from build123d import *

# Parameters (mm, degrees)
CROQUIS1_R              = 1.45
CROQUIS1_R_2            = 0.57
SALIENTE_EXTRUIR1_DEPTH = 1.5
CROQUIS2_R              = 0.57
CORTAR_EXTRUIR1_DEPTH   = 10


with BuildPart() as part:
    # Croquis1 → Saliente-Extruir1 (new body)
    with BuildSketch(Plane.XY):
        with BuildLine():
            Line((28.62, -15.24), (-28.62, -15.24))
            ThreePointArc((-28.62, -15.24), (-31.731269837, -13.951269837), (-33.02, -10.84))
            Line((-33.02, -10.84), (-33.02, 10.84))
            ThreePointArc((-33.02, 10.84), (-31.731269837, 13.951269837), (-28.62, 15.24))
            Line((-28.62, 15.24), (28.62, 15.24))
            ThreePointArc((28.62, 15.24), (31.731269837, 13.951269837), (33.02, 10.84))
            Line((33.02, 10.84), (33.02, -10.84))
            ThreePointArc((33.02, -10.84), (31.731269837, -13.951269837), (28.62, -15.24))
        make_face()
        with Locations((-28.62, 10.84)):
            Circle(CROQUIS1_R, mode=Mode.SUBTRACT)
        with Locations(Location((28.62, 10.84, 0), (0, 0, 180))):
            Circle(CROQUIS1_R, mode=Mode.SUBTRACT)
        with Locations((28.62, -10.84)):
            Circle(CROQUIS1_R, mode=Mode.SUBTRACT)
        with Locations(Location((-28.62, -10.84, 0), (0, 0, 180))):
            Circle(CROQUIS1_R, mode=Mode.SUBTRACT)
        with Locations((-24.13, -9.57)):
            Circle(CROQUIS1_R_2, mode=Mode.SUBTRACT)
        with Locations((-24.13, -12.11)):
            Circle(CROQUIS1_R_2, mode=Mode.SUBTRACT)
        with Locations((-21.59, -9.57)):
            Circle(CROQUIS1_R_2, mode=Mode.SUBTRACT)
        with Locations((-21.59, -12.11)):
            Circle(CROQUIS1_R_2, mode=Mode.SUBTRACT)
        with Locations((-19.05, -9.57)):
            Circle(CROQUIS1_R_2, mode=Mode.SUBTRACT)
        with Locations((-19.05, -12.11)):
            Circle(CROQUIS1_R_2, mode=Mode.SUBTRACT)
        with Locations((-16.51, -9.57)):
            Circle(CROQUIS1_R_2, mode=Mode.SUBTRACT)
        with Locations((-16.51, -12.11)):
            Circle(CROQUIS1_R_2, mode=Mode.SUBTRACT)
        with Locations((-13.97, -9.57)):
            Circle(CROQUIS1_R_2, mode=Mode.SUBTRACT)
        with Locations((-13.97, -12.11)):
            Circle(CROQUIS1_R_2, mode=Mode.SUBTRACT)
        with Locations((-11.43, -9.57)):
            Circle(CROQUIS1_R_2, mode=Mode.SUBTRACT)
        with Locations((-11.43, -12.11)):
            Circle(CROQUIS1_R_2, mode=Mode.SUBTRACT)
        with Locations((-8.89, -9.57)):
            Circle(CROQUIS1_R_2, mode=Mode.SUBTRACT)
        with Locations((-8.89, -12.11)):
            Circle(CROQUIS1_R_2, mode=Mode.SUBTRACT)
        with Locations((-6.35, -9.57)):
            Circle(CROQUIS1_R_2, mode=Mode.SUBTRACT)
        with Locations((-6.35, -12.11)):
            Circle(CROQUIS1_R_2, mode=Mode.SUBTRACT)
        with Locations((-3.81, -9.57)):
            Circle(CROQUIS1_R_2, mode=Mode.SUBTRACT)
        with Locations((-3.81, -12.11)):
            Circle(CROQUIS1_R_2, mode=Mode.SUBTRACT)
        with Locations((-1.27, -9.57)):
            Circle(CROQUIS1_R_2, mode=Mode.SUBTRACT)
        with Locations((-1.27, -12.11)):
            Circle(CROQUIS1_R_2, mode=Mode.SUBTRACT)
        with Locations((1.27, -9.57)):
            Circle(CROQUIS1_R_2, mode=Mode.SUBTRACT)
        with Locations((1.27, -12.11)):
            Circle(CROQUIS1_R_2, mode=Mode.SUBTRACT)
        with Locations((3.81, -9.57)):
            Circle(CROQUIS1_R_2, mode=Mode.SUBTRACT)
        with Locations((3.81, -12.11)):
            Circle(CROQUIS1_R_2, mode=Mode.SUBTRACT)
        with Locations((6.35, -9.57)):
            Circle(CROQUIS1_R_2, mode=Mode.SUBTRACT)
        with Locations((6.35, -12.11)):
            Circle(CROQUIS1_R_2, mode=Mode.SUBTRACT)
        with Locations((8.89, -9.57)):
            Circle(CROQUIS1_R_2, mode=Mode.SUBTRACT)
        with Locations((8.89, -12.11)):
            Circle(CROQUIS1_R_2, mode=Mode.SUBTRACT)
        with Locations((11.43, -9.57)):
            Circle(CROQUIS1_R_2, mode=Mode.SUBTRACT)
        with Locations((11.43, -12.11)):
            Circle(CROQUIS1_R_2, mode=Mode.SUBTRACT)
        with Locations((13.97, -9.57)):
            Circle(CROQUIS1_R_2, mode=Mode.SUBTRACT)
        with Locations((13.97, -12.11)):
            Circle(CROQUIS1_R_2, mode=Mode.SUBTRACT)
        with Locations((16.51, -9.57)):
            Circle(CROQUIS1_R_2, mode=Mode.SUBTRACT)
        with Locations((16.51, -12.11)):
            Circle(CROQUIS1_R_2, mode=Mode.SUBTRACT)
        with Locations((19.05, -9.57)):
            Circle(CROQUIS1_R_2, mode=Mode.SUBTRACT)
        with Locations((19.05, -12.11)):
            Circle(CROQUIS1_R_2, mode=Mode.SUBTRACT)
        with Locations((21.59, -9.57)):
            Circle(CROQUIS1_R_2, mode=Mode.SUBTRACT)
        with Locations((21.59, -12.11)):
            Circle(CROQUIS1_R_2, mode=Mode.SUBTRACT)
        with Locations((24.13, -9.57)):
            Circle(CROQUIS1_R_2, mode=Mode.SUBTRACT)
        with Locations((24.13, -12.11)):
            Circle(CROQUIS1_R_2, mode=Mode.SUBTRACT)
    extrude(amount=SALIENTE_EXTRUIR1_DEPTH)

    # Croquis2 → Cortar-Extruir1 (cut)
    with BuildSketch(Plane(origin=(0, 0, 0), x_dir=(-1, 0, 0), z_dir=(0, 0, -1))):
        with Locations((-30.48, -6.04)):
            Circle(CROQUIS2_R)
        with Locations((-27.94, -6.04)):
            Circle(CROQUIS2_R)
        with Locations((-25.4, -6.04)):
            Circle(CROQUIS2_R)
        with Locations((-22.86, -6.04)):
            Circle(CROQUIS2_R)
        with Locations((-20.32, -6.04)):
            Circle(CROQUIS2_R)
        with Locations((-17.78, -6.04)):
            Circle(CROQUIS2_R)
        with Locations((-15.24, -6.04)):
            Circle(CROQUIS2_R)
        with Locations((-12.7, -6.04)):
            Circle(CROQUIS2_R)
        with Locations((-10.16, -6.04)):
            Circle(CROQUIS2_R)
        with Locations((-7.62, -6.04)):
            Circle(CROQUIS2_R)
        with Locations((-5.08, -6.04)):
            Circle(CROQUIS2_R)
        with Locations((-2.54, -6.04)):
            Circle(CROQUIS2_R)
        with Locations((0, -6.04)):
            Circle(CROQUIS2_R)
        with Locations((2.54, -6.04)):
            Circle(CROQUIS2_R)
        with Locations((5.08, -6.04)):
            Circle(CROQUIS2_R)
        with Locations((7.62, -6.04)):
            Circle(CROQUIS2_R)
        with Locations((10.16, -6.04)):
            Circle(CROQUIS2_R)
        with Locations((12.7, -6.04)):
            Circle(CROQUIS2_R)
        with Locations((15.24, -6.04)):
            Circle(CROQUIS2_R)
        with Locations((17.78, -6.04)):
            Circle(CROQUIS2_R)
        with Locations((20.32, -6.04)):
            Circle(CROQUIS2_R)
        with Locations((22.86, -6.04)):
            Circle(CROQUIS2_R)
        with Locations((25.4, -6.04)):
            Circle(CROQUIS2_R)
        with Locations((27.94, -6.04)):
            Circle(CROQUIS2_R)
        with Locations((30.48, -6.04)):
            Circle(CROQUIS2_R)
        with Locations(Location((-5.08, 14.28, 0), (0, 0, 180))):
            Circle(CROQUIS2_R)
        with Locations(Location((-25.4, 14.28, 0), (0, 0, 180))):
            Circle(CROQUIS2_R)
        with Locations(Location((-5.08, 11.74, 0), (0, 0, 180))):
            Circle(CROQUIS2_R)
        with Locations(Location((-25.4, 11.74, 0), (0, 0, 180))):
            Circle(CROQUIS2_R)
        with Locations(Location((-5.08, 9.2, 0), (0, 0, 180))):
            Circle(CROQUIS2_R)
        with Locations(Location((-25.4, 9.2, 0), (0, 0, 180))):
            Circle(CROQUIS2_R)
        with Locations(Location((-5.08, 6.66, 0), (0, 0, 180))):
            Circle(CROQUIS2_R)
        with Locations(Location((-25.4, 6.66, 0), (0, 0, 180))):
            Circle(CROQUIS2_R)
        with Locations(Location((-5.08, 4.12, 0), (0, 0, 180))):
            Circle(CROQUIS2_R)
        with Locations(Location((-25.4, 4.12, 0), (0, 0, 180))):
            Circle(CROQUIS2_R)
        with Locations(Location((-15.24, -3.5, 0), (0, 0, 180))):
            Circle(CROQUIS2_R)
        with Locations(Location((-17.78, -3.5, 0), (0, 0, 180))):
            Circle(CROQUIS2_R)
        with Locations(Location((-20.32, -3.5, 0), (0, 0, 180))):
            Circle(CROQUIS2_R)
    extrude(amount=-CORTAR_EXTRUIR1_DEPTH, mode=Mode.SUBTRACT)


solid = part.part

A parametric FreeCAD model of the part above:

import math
import FreeCAD as App
import Part
import Sketcher

doc = App.newDocument("Part")
body = doc.addObject("PartDesign::Body", "Body")

# Sketch on XY plane
sketch1 = body.newObject("Sketcher::SketchObject", "Sketch")
sketch1.AttachmentSupport = (doc.getObject("XY_Plane"), [""])
sketch1.MapMode = "FlatFace"
sketch1.addGeometry([
    Part.LineSegment(App.Vector(-28.6, -15.2, 0), App.Vector(28.6, -15.2, 0)),  # 0
    Part.ArcOfCircle(Part.Circle(App.Vector(28.6, -10.8, 0), App.Vector(0, 0, 1), 4.4), math.radians(-90), math.radians(0)),  # 1
    Part.LineSegment(App.Vector(33, -10.8, 0), App.Vector(33, 10.8, 0)),  # 2
    Part.ArcOfCircle(Part.Circle(App.Vector(28.6, 10.8, 0), App.Vector(0, 0, 1), 4.4), math.radians(0), math.radians(90)),  # 3
    Part.LineSegment(App.Vector(28.6, 15.2, 0), App.Vector(-28.6, 15.2, 0)),  # 4
    Part.ArcOfCircle(Part.Circle(App.Vector(-28.6, 10.8, 0), App.Vector(0, 0, 1), 4.4), math.radians(90), math.radians(180)),  # 5
    Part.LineSegment(App.Vector(-33, 10.8, 0), App.Vector(-33, -10.8, 0)),  # 6
    Part.ArcOfCircle(Part.Circle(App.Vector(-28.6, -10.8, 0), App.Vector(0, 0, 1), 4.4), math.radians(-180), math.radians(-90)),  # 7
    Part.Circle(App.Vector(24.1, -12.1, 0), App.Vector(0, 0, 1), 0.6),  # 8
    Part.Circle(App.Vector(28.6, -10.8, 0), App.Vector(0, 0, 1), 1.4),  # 9
    Part.Circle(App.Vector(24.1, -9.6, 0), App.Vector(0, 0, 1), 0.6),  # 10
    Part.Circle(App.Vector(21.6, -12.1, 0), App.Vector(0, 0, 1), 0.6),  # 11
    Part.Circle(App.Vector(19.1, -12.1, 0), App.Vector(0, 0, 1), 0.6),  # 12
    Part.Circle(App.Vector(16.5, -12.1, 0), App.Vector(0, 0, 1), 0.6),  # 13
    Part.Circle(App.Vector(21.6, -9.6, 0), App.Vector(0, 0, 1), 0.6),  # 14
    Part.Circle(App.Vector(19.1, -9.6, 0), App.Vector(0, 0, 1), 0.6),  # 15
    Part.Circle(App.Vector(16.5, -9.6, 0), App.Vector(0, 0, 1), 0.6),  # 16
    Part.Circle(App.Vector(14, -12.1, 0), App.Vector(0, 0, 1), 0.6),  # 17
    Part.Circle(App.Vector(11.4, -12.1, 0), App.Vector(0, 0, 1), 0.6),  # 18
    Part.Circle(App.Vector(8.9, -12.1, 0), App.Vector(0, 0, 1), 0.6),  # 19
    Part.Circle(App.Vector(14, -9.6, 0), App.Vector(0, 0, 1), 0.6),  # 20
    Part.Circle(App.Vector(11.4, -9.6, 0), App.Vector(0, 0, 1), 0.6),  # 21
    Part.Circle(App.Vector(8.9, -9.6, 0), App.Vector(0, 0, 1), 0.6),  # 22
    Part.Circle(App.Vector(6.3, -12.1, 0), App.Vector(0, 0, 1), 0.6),  # 23
    Part.Circle(App.Vector(3.8, -12.1, 0), App.Vector(0, 0, 1), 0.6),  # 24
    Part.Circle(App.Vector(1.3, -12.1, 0), App.Vector(0, 0, 1), 0.6),  # 25
    Part.Circle(App.Vector(6.3, -9.6, 0), App.Vector(0, 0, 1), 0.6),  # 26
    Part.Circle(App.Vector(3.8, -9.6, 0), App.Vector(0, 0, 1), 0.6),  # 27
    Part.Circle(App.Vector(1.3, -9.6, 0), App.Vector(0, 0, 1), 0.6),  # 28
    Part.Circle(App.Vector(-1.3, -12.1, 0), App.Vector(0, 0, 1), 0.6),  # 29
    Part.Circle(App.Vector(-3.8, -12.1, 0), App.Vector(0, 0, 1), 0.6),  # 30
    Part.Circle(App.Vector(-6.3, -12.1, 0), App.Vector(0, 0, 1), 0.6),  # 31
    Part.Circle(App.Vector(-1.3, -9.6, 0), App.Vector(0, 0, 1), 0.6),  # 32
    Part.Circle(App.Vector(-3.8, -9.6, 0), App.Vector(0, 0, 1), 0.6),  # 33
    Part.Circle(App.Vector(-6.3, -9.6, 0), App.Vector(0, 0, 1), 0.6),  # 34
    Part.Circle(App.Vector(-8.9, -12.1, 0), App.Vector(0, 0, 1), 0.6),  # 35
    Part.Circle(App.Vector(-11.4, -12.1, 0), App.Vector(0, 0, 1), 0.6),  # 36
    Part.Circle(App.Vector(-14, -12.1, 0), App.Vector(0, 0, 1), 0.6),  # 37
    Part.Circle(App.Vector(-8.9, -9.6, 0), App.Vector(0, 0, 1), 0.6),  # 38
    Part.Circle(App.Vector(-11.4, -9.6, 0), App.Vector(0, 0, 1), 0.6),  # 39
    Part.Circle(App.Vector(-14, -9.6, 0), App.Vector(0, 0, 1), 0.6),  # 40
    Part.Circle(App.Vector(-16.5, -12.1, 0), App.Vector(0, 0, 1), 0.6),  # 41
    Part.Circle(App.Vector(-19.1, -12.1, 0), App.Vector(0, 0, 1), 0.6),  # 42
    Part.Circle(App.Vector(-21.6, -12.1, 0), App.Vector(0, 0, 1), 0.6),  # 43
    Part.Circle(App.Vector(-16.5, -9.6, 0), App.Vector(0, 0, 1), 0.6),  # 44
    Part.Circle(App.Vector(-19.1, -9.6, 0), App.Vector(0, 0, 1), 0.6),  # 45
    Part.Circle(App.Vector(-21.6, -9.6, 0), App.Vector(0, 0, 1), 0.6),  # 46
    Part.Circle(App.Vector(-24.1, -12.1, 0), App.Vector(0, 0, 1), 0.6),  # 47
    Part.Circle(App.Vector(-24.1, -9.6, 0), App.Vector(0, 0, 1), 0.6),  # 48
    Part.Circle(App.Vector(-28.6, -10.8, 0), App.Vector(0, 0, 1), 1.4),  # 49
    Part.Circle(App.Vector(28.6, 10.8, 0), App.Vector(0, 0, 1), 1.4),  # 50
    Part.Circle(App.Vector(-28.6, 10.8, 0), App.Vector(0, 0, 1), 1.4),  # 51
], False)
sketch1.addConstraint([
    Sketcher.Constraint("Tangent", 0, 2, 1, 1),
    Sketcher.Constraint("Tangent", 1, 2, 2, 1),
    Sketcher.Constraint("Tangent", 2, 2, 3, 1),
    Sketcher.Constraint("Tangent", 3, 2, 4, 1),
    Sketcher.Constraint("Tangent", 4, 2, 5, 1),
    Sketcher.Constraint("Tangent", 5, 2, 6, 1),
    Sketcher.Constraint("Tangent", 6, 2, 7, 1),
    Sketcher.Constraint("Tangent", 7, 2, 0, 1),
    Sketcher.Constraint("Horizontal", 0),
    Sketcher.Constraint("Vertical", 2),
    Sketcher.Constraint("Horizontal", 4),
    Sketcher.Constraint("Vertical", 6),
    Sketcher.Constraint("Coincident", 9, 3, 1, 3),
    Sketcher.Constraint("Coincident", 49, 3, 7, 3),
    Sketcher.Constraint("Coincident", 50, 3, 3, 3),
    Sketcher.Constraint("Coincident", 51, 3, 5, 3),
    Sketcher.Constraint("Equal", 1, 3),
    Sketcher.Constraint("Equal", 3, 5),
    Sketcher.Constraint("Equal", 5, 7),
    Sketcher.Constraint("Equal", 8, 10),
    Sketcher.Constraint("Equal", 10, 11),
    Sketcher.Constraint("Equal", 11, 12),
    Sketcher.Constraint("Equal", 12, 13),
    Sketcher.Constraint("Equal", 13, 14),
    Sketcher.Constraint("Equal", 14, 15),
    Sketcher.Constraint("Equal", 15, 16),
    Sketcher.Constraint("Equal", 16, 17),
    Sketcher.Constraint("Equal", 17, 18),
    Sketcher.Constraint("Equal", 18, 19),
    Sketcher.Constraint("Equal", 19, 20),
    Sketcher.Constraint("Equal", 20, 21),
    Sketcher.Constraint("Equal", 21, 22),
    Sketcher.Constraint("Equal", 22, 23),
    Sketcher.Constraint("Equal", 23, 24),
    Sketcher.Constraint("Equal", 24, 25),
    Sketcher.Constraint("Equal", 25, 26),
    Sketcher.Constraint("Equal", 26, 27),
    Sketcher.Constraint("Equal", 27, 28),
    Sketcher.Constraint("Equal", 28, 29),
    Sketcher.Constraint("Equal", 29, 30),
    Sketcher.Constraint("Equal", 30, 31),
    Sketcher.Constraint("Equal", 31, 32),
    Sketcher.Constraint("Equal", 32, 33),
    Sketcher.Constraint("Equal", 33, 34),
    Sketcher.Constraint("Equal", 34, 35),
    Sketcher.Constraint("Equal", 35, 36),
    Sketcher.Constraint("Equal", 36, 37),
    Sketcher.Constraint("Equal", 37, 38),
    Sketcher.Constraint("Equal", 38, 39),
    Sketcher.Constraint("Equal", 39, 40),
    Sketcher.Constraint("Equal", 40, 41),
    Sketcher.Constraint("Equal", 41, 42),
    Sketcher.Constraint("Equal", 42, 43),
    Sketcher.Constraint("Equal", 43, 44),
    Sketcher.Constraint("Equal", 44, 45),
    Sketcher.Constraint("Equal", 45, 46),
    Sketcher.Constraint("Equal", 46, 47),
    Sketcher.Constraint("Equal", 47, 48),
    Sketcher.Constraint("Equal", 9, 49),
    Sketcher.Constraint("Equal", 49, 50),
    Sketcher.Constraint("Equal", 50, 51),
    Sketcher.Constraint("Symmetric", 1, 3, 5, 3, -1, 1),
    Sketcher.Constraint("Symmetric", 25, 3, 29, 3, -2),
    Sketcher.Constraint("Symmetric", 24, 3, 30, 3, -2),
    Sketcher.Constraint("Symmetric", 23, 3, 31, 3, -2),
    Sketcher.Constraint("Symmetric", 28, 3, 32, 3, -2),
    Sketcher.Constraint("Symmetric", 27, 3, 33, 3, -2),
    Sketcher.Constraint("Symmetric", 26, 3, 34, 3, -2),
    Sketcher.Constraint("Symmetric", 19, 3, 35, 3, -2),
    Sketcher.Constraint("Symmetric", 18, 3, 36, 3, -2),
    Sketcher.Constraint("Symmetric", 17, 3, 37, 3, -2),
    Sketcher.Constraint("Symmetric", 22, 3, 38, 3, -2),
    Sketcher.Constraint("Symmetric", 21, 3, 39, 3, -2),
    Sketcher.Constraint("Symmetric", 20, 3, 40, 3, -2),
    Sketcher.Constraint("Symmetric", 13, 3, 41, 3, -2),
    Sketcher.Constraint("Symmetric", 12, 3, 42, 3, -2),
    Sketcher.Constraint("Symmetric", 11, 3, 43, 3, -2),
    Sketcher.Constraint("Symmetric", 16, 3, 44, 3, -2),
    Sketcher.Constraint("Symmetric", 15, 3, 45, 3, -2),
    Sketcher.Constraint("Symmetric", 14, 3, 46, 3, -2),
    Sketcher.Constraint("Symmetric", 8, 3, 47, 3, -2),
    Sketcher.Constraint("Symmetric", 10, 3, 48, 3, -2),
    Sketcher.Constraint("Horizontal", 8, 3, 11, 3),
    Sketcher.Constraint("Horizontal", 11, 3, 12, 3),
    Sketcher.Constraint("Horizontal", 12, 3, 13, 3),
    Sketcher.Constraint("Horizontal", 10, 3, 14, 3),
    Sketcher.Constraint("Horizontal", 14, 3, 15, 3),
    Sketcher.Constraint("Horizontal", 15, 3, 16, 3),
    Sketcher.Constraint("Horizontal", 13, 3, 17, 3),
    Sketcher.Constraint("Horizontal", 17, 3, 18, 3),
    Sketcher.Constraint("Horizontal", 18, 3, 19, 3),
    Sketcher.Constraint("Horizontal", 16, 3, 20, 3),
    Sketcher.Constraint("Horizontal", 20, 3, 21, 3),
    Sketcher.Constraint("Horizontal", 21, 3, 22, 3),
    Sketcher.Constraint("Horizontal", 19, 3, 23, 3),
    Sketcher.Constraint("Horizontal", 23, 3, 24, 3),
    Sketcher.Constraint("Horizontal", 24, 3, 25, 3),
    Sketcher.Constraint("Horizontal", 22, 3, 26, 3),
    Sketcher.Constraint("Horizontal", 26, 3, 27, 3),
    Sketcher.Constraint("Horizontal", 27, 3, 28, 3),
    Sketcher.Constraint("Vertical", 8, 3, 10, 3),
    Sketcher.Constraint("Vertical", 11, 3, 14, 3),
    Sketcher.Constraint("Vertical", 12, 3, 15, 3),
    Sketcher.Constraint("Vertical", 13, 3, 16, 3),
    Sketcher.Constraint("Vertical", 17, 3, 20, 3),
    Sketcher.Constraint("Vertical", 18, 3, 21, 3),
    Sketcher.Constraint("Vertical", 19, 3, 22, 3),
    Sketcher.Constraint("Vertical", 23, 3, 26, 3),
    Sketcher.Constraint("Vertical", 24, 3, 27, 3),
    Sketcher.Constraint("Vertical", 25, 3, 28, 3),
    Sketcher.Constraint("Diameter", 9, 2.9),
    Sketcher.Constraint("Radius", 1, 4.4),
    Sketcher.Constraint("Diameter", 8, 1.14),
    Sketcher.Constraint("DistanceX", 0, 1, 0, 2, 57.24),
    Sketcher.Constraint("DistanceY", 2, 1, 2, 2, 21.68),
    Sketcher.Constraint("DistanceX", -1, 1, 8, 3, 24.13),
    Sketcher.Constraint("DistanceY", 8, 3, -1, 1, 12.11),
    Sketcher.Constraint("DistanceY", 10, 3, -1, 1, 9.57),
    Sketcher.Constraint("DistanceX", -1, 1, 11, 3, 21.59),
    Sketcher.Constraint("DistanceX", -1, 1, 12, 3, 19.05),
    Sketcher.Constraint("DistanceX", -1, 1, 13, 3, 16.51),
    Sketcher.Constraint("DistanceX", -1, 1, 17, 3, 13.97),
    Sketcher.Constraint("DistanceX", -1, 1, 18, 3, 11.43),
    Sketcher.Constraint("DistanceX", -1, 1, 19, 3, 8.89),
    Sketcher.Constraint("DistanceX", -1, 1, 23, 3, 6.35),
    Sketcher.Constraint("DistanceX", -1, 1, 24, 3, 3.81),
    Sketcher.Constraint("DistanceX", -1, 1, 25, 3, 1.27),
])
pad1 = body.newObject("PartDesign::Pad", "Pad")
pad1.Profile = sketch1
pad1.Length = 1.5

# Sketch on XY plane
sketch2 = body.newObject("Sketcher::SketchObject", "Sketch001")
sketch2.AttachmentSupport = (doc.getObject("XY_Plane"), [""])
sketch2.MapMode = "FlatFace"
sketch2.addGeometry([
    Part.Circle(App.Vector(30.5, -6, 0), App.Vector(0, 0, 1), 0.6),  # 0
    Part.Circle(App.Vector(27.9, -6, 0), App.Vector(0, 0, 1), 0.6),  # 1
    Part.Circle(App.Vector(25.4, -6, 0), App.Vector(0, 0, 1), 0.6),  # 2
    Part.Circle(App.Vector(22.9, -6, 0), App.Vector(0, 0, 1), 0.6),  # 3
    Part.Circle(App.Vector(20.3, -6, 0), App.Vector(0, 0, 1), 0.6),  # 4
    Part.Circle(App.Vector(17.8, -6, 0), App.Vector(0, 0, 1), 0.6),  # 5
    Part.Circle(App.Vector(15.2, -6, 0), App.Vector(0, 0, 1), 0.6),  # 6
    Part.Circle(App.Vector(12.7, -6, 0), App.Vector(0, 0, 1), 0.6),  # 7
    Part.Circle(App.Vector(10.2, -6, 0), App.Vector(0, 0, 1), 0.6),  # 8
    Part.Circle(App.Vector(7.6, -6, 0), App.Vector(0, 0, 1), 0.6),  # 9
    Part.Circle(App.Vector(5.1, -6, 0), App.Vector(0, 0, 1), 0.6),  # 10
    Part.Circle(App.Vector(2.5, -6, 0), App.Vector(0, 0, 1), 0.6),  # 11
    Part.Circle(App.Vector(0, -6, 0), App.Vector(0, 0, 1), 0.6),  # 12
    Part.Circle(App.Vector(-2.5, -6, 0), App.Vector(0, 0, 1), 0.6),  # 13
    Part.Circle(App.Vector(-5.1, -6, 0), App.Vector(0, 0, 1), 0.6),  # 14
    Part.Circle(App.Vector(-7.6, -6, 0), App.Vector(0, 0, 1), 0.6),  # 15
    Part.Circle(App.Vector(-10.2, -6, 0), App.Vector(0, 0, 1), 0.6),  # 16
    Part.Circle(App.Vector(-12.7, -6, 0), App.Vector(0, 0, 1), 0.6),  # 17
    Part.Circle(App.Vector(-15.2, -6, 0), App.Vector(0, 0, 1), 0.6),  # 18
    Part.Circle(App.Vector(-17.8, -6, 0), App.Vector(0, 0, 1), 0.6),  # 19
    Part.Circle(App.Vector(-20.3, -6, 0), App.Vector(0, 0, 1), 0.6),  # 20
    Part.Circle(App.Vector(-22.9, -6, 0), App.Vector(0, 0, 1), 0.6),  # 21
    Part.Circle(App.Vector(-25.4, -6, 0), App.Vector(0, 0, 1), 0.6),  # 22
    Part.Circle(App.Vector(-27.9, -6, 0), App.Vector(0, 0, 1), 0.6),  # 23
    Part.Circle(App.Vector(-30.5, -6, 0), App.Vector(0, 0, 1), 0.6),  # 24
    Part.Circle(App.Vector(5.1, 14.3, 0), App.Vector(0, 0, 1), 0.6),  # 25
    Part.Circle(App.Vector(25.4, 14.3, 0), App.Vector(0, 0, 1), 0.6),  # 26
    Part.Circle(App.Vector(5.1, 11.7, 0), App.Vector(0, 0, 1), 0.6),  # 27
    Part.Circle(App.Vector(25.4, 11.7, 0), App.Vector(0, 0, 1), 0.6),  # 28
    Part.Circle(App.Vector(5.1, 9.2, 0), App.Vector(0, 0, 1), 0.6),  # 29
    Part.Circle(App.Vector(25.4, 9.2, 0), App.Vector(0, 0, 1), 0.6),  # 30
    Part.Circle(App.Vector(5.1, 6.7, 0), App.Vector(0, 0, 1), 0.6),  # 31
    Part.Circle(App.Vector(25.4, 6.7, 0), App.Vector(0, 0, 1), 0.6),  # 32
    Part.Circle(App.Vector(5.1, 4.1, 0), App.Vector(0, 0, 1), 0.6),  # 33
    Part.Circle(App.Vector(25.4, 4.1, 0), App.Vector(0, 0, 1), 0.6),  # 34
    Part.Circle(App.Vector(15.2, -3.5, 0), App.Vector(0, 0, 1), 0.6),  # 35
    Part.Circle(App.Vector(17.8, -3.5, 0), App.Vector(0, 0, 1), 0.6),  # 36
    Part.Circle(App.Vector(20.3, -3.5, 0), App.Vector(0, 0, 1), 0.6),  # 37
], False)
sketch2.addConstraint([
    Sketcher.Constraint("Equal", 0, 1),
    Sketcher.Constraint("Equal", 1, 2),
    Sketcher.Constraint("Equal", 2, 3),
    Sketcher.Constraint("Equal", 3, 4),
    Sketcher.Constraint("Equal", 4, 5),
    Sketcher.Constraint("Equal", 5, 6),
    Sketcher.Constraint("Equal", 6, 7),
    Sketcher.Constraint("Equal", 7, 8),
    Sketcher.Constraint("Equal", 8, 9),
    Sketcher.Constraint("Equal", 9, 10),
    Sketcher.Constraint("Equal", 10, 11),
    Sketcher.Constraint("Equal", 11, 12),
    Sketcher.Constraint("Equal", 12, 13),
    Sketcher.Constraint("Equal", 13, 14),
    Sketcher.Constraint("Equal", 14, 15),
    Sketcher.Constraint("Equal", 15, 16),
    Sketcher.Constraint("Equal", 16, 17),
    Sketcher.Constraint("Equal", 17, 18),
    Sketcher.Constraint("Equal", 18, 19),
    Sketcher.Constraint("Equal", 19, 20),
    Sketcher.Constraint("Equal", 20, 21),
    Sketcher.Constraint("Equal", 21, 22),
    Sketcher.Constraint("Equal", 22, 23),
    Sketcher.Constraint("Equal", 23, 24),
    Sketcher.Constraint("Equal", 24, 25),
    Sketcher.Constraint("Equal", 25, 26),
    Sketcher.Constraint("Equal", 26, 27),
    Sketcher.Constraint("Equal", 27, 28),
    Sketcher.Constraint("Equal", 28, 29),
    Sketcher.Constraint("Equal", 29, 30),
    Sketcher.Constraint("Equal", 30, 31),
    Sketcher.Constraint("Equal", 31, 32),
    Sketcher.Constraint("Equal", 32, 33),
    Sketcher.Constraint("Equal", 33, 34),
    Sketcher.Constraint("Equal", 34, 35),
    Sketcher.Constraint("Equal", 35, 36),
    Sketcher.Constraint("Equal", 36, 37),
    Sketcher.Constraint("Symmetric", 11, 3, 13, 3, -2),
    Sketcher.Constraint("Symmetric", 10, 3, 14, 3, -2),
    Sketcher.Constraint("Symmetric", 9, 3, 15, 3, -2),
    Sketcher.Constraint("Symmetric", 8, 3, 16, 3, -2),
    Sketcher.Constraint("Symmetric", 7, 3, 17, 3, -2),
    Sketcher.Constraint("Symmetric", 6, 3, 18, 3, -2),
    Sketcher.Constraint("Symmetric", 5, 3, 19, 3, -2),
    Sketcher.Constraint("Symmetric", 4, 3, 20, 3, -2),
    Sketcher.Constraint("Symmetric", 3, 3, 21, 3, -2),
    Sketcher.Constraint("Symmetric", 2, 3, 22, 3, -2),
    Sketcher.Constraint("Symmetric", 1, 3, 23, 3, -2),
    Sketcher.Constraint("Symmetric", 0, 3, 24, 3, -2),
    Sketcher.Constraint("PointOnObject", 12, 3, -2),
    Sketcher.Constraint("Horizontal", 0, 3, 1, 3),
    Sketcher.Constraint("Horizontal", 1, 3, 2, 3),
    Sketcher.Constraint("Horizontal", 2, 3, 3, 3),
    Sketcher.Constraint("Horizontal", 3, 3, 4, 3),
    Sketcher.Constraint("Horizontal", 4, 3, 5, 3),
    Sketcher.Constraint("Horizontal", 5, 3, 6, 3),
    Sketcher.Constraint("Horizontal", 6, 3, 7, 3),
    Sketcher.Constraint("Horizontal", 7, 3, 8, 3),
    Sketcher.Constraint("Horizontal", 8, 3, 9, 3),
    Sketcher.Constraint("Horizontal", 9, 3, 10, 3),
    Sketcher.Constraint("Horizontal", 10, 3, 11, 3),
    Sketcher.Constraint("Horizontal", 11, 3, 12, 3),
    Sketcher.Constraint("Horizontal", 25, 3, 26, 3),
    Sketcher.Constraint("Horizontal", 27, 3, 28, 3),
    Sketcher.Constraint("Horizontal", 29, 3, 30, 3),
    Sketcher.Constraint("Horizontal", 31, 3, 32, 3),
    Sketcher.Constraint("Horizontal", 33, 3, 34, 3),
    Sketcher.Constraint("Horizontal", 35, 3, 36, 3),
    Sketcher.Constraint("Horizontal", 36, 3, 37, 3),
    Sketcher.Constraint("Vertical", 10, 3, 25, 3),
    Sketcher.Constraint("Vertical", 2, 3, 26, 3),
    Sketcher.Constraint("Vertical", 25, 3, 27, 3),
    Sketcher.Constraint("Vertical", 26, 3, 28, 3),
    Sketcher.Constraint("Vertical", 27, 3, 29, 3),
    Sketcher.Constraint("Vertical", 28, 3, 30, 3),
    Sketcher.Constraint("Vertical", 29, 3, 31, 3),
    Sketcher.Constraint("Vertical", 30, 3, 32, 3),
    Sketcher.Constraint("Vertical", 31, 3, 33, 3),
    Sketcher.Constraint("Vertical", 32, 3, 34, 3),
    Sketcher.Constraint("Vertical", 6, 3, 35, 3),
    Sketcher.Constraint("Vertical", 5, 3, 36, 3),
    Sketcher.Constraint("Vertical", 4, 3, 37, 3),
    Sketcher.Constraint("Diameter", 0, 1.14),
    Sketcher.Constraint("DistanceX", -1, 1, 2, 3, 25.4),
    Sketcher.Constraint("DistanceX", -1, 1, 7, 3, 12.7),
    Sketcher.Constraint("DistanceY", -1, 1, 29, 3, 9.2),
    Sketcher.Constraint("DistanceY", 35, 3, -1, 1, 3.5),
    Sketcher.Constraint("DistanceX", 5, 3, 0, 3, 12.7),
    Sketcher.Constraint("DistanceX", 6, 3, 1, 3, 12.7),
    Sketcher.Constraint("DistanceX", 8, 3, 3, 3, 12.7),
    Sketcher.Constraint("DistanceX", 9, 3, 4, 3, 12.7),
    Sketcher.Constraint("DistanceX", 10, 3, 5, 3, 12.7),
    Sketcher.Constraint("DistanceX", 11, 3, 6, 3, 12.7),
    Sketcher.Constraint("DistanceX", 13, 3, 8, 3, 12.7),
    Sketcher.Constraint("DistanceX", 14, 3, 9, 3, 12.7),
    Sketcher.Constraint("DistanceY", 10, 3, 31, 3, 12.7),
    Sketcher.Constraint("DistanceX", -1, 1, 0, 3, 30.48),
    Sketcher.Constraint("DistanceY", 0, 3, -1, 1, 6.04),
    Sketcher.Constraint("DistanceX", -1, 1, 1, 3, 27.94),
    Sketcher.Constraint("DistanceY", -1, 1, 25, 3, 14.28),
    Sketcher.Constraint("DistanceY", -1, 1, 27, 3, 11.74),
    Sketcher.Constraint("DistanceY", -1, 1, 33, 3, 4.12),
])
pocket1 = body.newObject("PartDesign::Pocket", "Pocket")
pocket1.Profile = sketch2
pocket1.Length = 10
pocket1.Reversed = True

doc.recompute()
